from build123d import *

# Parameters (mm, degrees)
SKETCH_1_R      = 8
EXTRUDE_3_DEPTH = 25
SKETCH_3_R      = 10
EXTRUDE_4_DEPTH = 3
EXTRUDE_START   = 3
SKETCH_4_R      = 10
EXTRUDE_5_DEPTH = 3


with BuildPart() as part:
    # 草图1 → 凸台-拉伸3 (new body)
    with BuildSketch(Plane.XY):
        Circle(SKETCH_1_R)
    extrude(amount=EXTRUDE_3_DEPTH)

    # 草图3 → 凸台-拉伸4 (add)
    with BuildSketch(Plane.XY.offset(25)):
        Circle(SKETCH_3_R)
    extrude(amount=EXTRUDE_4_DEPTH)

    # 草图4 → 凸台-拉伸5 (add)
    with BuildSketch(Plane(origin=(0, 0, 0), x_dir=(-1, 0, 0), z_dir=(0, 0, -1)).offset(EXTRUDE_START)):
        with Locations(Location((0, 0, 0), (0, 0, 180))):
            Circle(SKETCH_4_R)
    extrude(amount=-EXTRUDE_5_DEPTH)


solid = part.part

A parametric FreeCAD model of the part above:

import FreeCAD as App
import Part
import Sketcher
Q = App.Units.Quantity

doc = App.newDocument("Part")
body = doc.addObject("PartDesign::Body", "Body")

# Sketch on XY plane
sketch1 = body.newObject("Sketcher::SketchObject", "Sketch")
sketch1.AttachmentSupport = (doc.getObject("XY_Plane"), [""])
sketch1.MapMode = "FlatFace"
sketch1.addGeometry(Part.Circle(App.Vector(0, 0, 0), App.Vector(0, 0, 1), 8), False)
sketch1.addConstraint(Sketcher.Constraint("Coincident", 0, 3, -1, 1))
sketch1.addConstraint(Sketcher.Constraint("Diameter", 0, Q("16 mm")))
pad1 = body.newObject("PartDesign::Pad", "Pad")
pad1.Profile = sketch1
pad1.Length = 25

# Sketch on XY plane
sketch2 = body.newObject("Sketcher::SketchObject", "Sketch001")
sketch2.AttachmentSupport = (doc.getObject("XY_Plane"), [""])
sketch2.MapMode = "FlatFace"
sketch2.AttachmentOffset = App.Placement(App.Vector(0, 0, 25), App.Rotation())
sketch2.addGeometry(Part.Circle(App.Vector(0, 0, 0), App.Vector(0, 0, 1), 10), False)
sketch2.addConstraint(Sketcher.Constraint("Coincident", 0, 3, -1, 1))
sketch2.addConstraint(Sketcher.Constraint("Diameter", 0, Q("20 mm")))
pad2 = body.newObject("PartDesign::Pad", "Pad001")
pad2.Profile = sketch2
pad2.Length = 3

# Sketch on XY plane
sketch3 = body.newObject("Sketcher::SketchObject", "Sketch002")
sketch3.AttachmentSupport = (doc.getObject("XY_Plane"), [""])
sketch3.MapMode = "FlatFace"
sketch3.AttachmentOffset = App.Placement(App.Vector(0, 0, -3), App.Rotation())
sketch3.addGeometry(Part.Circle(App.Vector(0, 0, 0), App.Vector(0, 0, 1), 10), False)
sketch3.addConstraint(Sketcher.Constraint("Coincident", 0, 3, -1, 1))
sketch3.addConstraint(Sketcher.Constraint("Diameter", 0, Q("20 mm")))
pad3 = body.newObject("PartDesign::Pad", "Pad002")
pad3.Profile = sketch3
pad3.Length = 3

doc.recompute()
